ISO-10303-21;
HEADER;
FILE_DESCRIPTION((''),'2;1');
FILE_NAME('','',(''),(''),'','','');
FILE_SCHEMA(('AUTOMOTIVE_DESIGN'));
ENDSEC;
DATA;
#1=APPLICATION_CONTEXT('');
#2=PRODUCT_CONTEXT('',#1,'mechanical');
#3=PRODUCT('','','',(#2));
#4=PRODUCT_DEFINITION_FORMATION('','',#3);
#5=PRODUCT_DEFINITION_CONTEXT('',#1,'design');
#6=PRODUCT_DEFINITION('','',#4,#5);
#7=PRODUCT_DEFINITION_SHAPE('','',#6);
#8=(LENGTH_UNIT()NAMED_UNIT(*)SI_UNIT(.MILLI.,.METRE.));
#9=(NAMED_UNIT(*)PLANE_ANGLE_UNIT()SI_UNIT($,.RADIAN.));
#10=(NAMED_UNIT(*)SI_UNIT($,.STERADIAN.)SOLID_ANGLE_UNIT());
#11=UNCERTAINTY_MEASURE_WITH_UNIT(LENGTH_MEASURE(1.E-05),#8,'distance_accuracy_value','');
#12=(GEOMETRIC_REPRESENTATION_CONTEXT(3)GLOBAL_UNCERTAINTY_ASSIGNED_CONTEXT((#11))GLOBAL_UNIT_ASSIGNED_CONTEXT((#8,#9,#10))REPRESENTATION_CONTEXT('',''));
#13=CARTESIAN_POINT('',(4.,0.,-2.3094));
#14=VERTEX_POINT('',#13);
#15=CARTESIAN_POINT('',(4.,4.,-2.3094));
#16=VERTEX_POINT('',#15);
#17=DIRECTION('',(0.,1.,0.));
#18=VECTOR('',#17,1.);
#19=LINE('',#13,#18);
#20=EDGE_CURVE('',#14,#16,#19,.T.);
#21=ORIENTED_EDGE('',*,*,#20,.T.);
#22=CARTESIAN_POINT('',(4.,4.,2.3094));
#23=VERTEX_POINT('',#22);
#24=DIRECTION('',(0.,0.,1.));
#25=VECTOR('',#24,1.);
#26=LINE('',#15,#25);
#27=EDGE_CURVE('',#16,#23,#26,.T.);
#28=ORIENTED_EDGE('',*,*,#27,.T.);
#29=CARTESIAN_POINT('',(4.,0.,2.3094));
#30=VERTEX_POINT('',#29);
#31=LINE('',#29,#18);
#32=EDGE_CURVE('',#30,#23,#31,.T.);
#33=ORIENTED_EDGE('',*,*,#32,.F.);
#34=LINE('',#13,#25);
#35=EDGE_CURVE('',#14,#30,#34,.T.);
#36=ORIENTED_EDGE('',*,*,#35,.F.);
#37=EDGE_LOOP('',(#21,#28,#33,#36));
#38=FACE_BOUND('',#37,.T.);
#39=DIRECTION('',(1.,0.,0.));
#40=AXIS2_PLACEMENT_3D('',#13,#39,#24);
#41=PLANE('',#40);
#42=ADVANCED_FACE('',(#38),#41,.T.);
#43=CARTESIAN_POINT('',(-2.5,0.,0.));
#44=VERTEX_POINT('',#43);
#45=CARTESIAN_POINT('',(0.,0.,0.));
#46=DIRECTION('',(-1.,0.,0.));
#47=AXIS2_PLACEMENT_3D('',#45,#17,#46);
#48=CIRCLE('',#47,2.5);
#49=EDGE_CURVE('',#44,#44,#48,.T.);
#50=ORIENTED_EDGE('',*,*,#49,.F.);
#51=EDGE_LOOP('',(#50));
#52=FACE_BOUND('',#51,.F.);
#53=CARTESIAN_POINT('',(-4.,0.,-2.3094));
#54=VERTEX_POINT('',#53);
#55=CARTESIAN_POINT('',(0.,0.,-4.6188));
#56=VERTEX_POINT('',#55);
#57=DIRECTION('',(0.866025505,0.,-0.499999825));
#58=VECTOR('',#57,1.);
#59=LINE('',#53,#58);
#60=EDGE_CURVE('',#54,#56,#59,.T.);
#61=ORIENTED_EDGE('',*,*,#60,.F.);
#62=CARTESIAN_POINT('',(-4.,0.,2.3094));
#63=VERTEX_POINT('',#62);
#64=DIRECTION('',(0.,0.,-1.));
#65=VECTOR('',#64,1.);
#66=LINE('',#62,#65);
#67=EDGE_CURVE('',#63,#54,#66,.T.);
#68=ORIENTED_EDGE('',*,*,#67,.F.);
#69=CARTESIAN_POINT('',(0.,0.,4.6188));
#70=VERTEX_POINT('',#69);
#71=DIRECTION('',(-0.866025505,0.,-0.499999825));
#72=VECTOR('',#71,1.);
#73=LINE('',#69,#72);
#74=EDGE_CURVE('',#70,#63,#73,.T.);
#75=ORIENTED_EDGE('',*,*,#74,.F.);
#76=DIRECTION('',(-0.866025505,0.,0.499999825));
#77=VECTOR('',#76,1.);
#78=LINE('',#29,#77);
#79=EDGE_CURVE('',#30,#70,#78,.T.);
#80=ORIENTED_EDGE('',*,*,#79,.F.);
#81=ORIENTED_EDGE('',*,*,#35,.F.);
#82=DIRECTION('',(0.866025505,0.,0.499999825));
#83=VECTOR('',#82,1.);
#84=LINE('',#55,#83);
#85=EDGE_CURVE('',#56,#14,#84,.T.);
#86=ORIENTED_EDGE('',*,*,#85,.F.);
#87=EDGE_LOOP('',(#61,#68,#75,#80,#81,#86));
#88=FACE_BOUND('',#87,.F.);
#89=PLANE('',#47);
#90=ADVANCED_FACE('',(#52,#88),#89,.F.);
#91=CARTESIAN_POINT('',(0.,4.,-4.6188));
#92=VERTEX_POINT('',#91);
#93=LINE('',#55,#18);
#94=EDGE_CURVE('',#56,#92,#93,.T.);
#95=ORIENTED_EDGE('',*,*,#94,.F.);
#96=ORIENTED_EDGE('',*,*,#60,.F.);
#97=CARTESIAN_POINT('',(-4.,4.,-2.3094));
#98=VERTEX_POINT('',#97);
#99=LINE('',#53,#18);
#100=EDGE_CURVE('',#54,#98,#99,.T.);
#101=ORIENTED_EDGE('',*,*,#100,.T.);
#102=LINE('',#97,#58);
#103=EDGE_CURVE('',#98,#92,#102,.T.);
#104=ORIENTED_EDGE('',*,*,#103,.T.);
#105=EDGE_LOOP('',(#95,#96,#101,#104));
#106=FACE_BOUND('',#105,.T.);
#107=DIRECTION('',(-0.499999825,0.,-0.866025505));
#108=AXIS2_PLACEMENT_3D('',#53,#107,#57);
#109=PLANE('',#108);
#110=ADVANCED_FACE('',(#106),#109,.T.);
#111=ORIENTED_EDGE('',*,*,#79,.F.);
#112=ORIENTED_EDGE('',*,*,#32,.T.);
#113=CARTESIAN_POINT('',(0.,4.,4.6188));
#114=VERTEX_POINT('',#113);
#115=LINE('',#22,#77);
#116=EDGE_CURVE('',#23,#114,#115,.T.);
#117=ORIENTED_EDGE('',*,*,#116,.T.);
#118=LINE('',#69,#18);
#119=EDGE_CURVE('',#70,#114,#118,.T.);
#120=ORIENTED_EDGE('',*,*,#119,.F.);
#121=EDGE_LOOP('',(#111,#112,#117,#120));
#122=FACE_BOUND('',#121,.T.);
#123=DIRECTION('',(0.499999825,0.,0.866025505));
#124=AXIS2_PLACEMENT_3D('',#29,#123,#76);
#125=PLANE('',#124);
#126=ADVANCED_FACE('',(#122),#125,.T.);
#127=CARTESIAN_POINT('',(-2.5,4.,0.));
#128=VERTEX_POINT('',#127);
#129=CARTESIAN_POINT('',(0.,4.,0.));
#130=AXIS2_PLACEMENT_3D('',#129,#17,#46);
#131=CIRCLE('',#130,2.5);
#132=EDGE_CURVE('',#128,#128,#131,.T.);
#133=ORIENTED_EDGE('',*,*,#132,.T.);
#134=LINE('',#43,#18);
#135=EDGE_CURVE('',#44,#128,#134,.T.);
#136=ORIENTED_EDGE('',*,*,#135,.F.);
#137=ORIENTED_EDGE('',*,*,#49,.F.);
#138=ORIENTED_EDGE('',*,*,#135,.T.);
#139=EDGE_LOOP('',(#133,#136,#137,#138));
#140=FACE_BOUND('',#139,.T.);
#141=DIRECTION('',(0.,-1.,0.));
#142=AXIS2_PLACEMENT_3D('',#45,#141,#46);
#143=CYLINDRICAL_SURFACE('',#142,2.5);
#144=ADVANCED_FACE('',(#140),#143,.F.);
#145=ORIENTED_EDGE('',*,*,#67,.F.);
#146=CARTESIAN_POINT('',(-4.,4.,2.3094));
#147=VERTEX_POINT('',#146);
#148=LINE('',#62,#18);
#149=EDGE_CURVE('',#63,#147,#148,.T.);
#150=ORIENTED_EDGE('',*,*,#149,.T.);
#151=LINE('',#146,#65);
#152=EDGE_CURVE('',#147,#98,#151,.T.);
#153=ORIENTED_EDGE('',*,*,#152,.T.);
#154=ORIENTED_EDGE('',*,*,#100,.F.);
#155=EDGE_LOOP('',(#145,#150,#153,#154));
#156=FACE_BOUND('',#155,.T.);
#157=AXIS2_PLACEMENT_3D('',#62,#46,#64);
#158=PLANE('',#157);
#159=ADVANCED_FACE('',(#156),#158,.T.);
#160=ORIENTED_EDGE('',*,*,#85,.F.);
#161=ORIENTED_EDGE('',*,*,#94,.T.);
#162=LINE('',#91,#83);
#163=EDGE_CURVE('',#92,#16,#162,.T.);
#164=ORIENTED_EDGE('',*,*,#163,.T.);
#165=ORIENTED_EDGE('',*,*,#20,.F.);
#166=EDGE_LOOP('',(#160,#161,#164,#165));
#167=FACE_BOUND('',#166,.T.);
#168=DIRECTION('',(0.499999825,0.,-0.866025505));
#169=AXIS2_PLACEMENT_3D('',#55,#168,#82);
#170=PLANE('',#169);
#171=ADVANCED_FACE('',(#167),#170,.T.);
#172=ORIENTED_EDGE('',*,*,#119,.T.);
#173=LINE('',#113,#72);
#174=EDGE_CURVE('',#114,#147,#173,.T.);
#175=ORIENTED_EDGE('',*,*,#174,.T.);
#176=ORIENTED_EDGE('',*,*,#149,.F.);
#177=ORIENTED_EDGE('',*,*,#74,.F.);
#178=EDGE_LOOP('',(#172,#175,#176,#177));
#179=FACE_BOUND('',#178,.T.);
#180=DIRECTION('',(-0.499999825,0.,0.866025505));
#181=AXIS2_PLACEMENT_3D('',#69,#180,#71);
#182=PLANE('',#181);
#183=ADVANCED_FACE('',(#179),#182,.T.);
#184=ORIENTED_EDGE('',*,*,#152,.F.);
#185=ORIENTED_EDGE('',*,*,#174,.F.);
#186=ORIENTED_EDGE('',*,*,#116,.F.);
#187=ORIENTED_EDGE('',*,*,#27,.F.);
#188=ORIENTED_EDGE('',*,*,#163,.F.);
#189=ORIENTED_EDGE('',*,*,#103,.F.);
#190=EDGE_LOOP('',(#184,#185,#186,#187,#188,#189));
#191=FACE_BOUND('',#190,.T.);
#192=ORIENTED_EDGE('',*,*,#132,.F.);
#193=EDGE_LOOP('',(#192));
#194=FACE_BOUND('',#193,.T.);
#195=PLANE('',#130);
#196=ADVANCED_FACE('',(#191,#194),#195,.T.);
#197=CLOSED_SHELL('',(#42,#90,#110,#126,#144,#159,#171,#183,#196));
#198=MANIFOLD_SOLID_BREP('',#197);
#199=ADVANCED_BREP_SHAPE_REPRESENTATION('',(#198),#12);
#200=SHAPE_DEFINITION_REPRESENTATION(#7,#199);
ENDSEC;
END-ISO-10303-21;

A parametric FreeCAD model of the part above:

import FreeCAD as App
import Part
import Sketcher
Q = App.Units.Quantity

doc = App.newDocument("Part")
body = doc.addObject("PartDesign::Body", "Body")

# Sketch on XZ plane
sketch1 = body.newObject("Sketcher::SketchObject", "Sketch")
sketch1.AttachmentSupport = (doc.getObject("XZ_Plane"), [""])
sketch1.MapMode = "FlatFace"
sketch1.addGeometry(Part.LineSegment(App.Vector(-4, 2.3, 0), App.Vector(0, 4.6, 0)), False)
sketch1.addGeometry(Part.LineSegment(App.Vector(0, 4.6, 0), App.Vector(4, 2.3, 0)), False)
sketch1.addGeometry(Part.LineSegment(App.Vector(4, 2.3, 0), App.Vector(4, -2.3, 0)), False)
sketch1.addGeometry(Part.LineSegment(App.Vector(4, -2.3, 0), App.Vector(0, -4.6, 0)), False)
sketch1.addGeometry(Part.LineSegment(App.Vector(0, -4.6, 0), App.Vector(-4, -2.3, 0)), False)
sketch1.addGeometry(Part.LineSegment(App.Vector(-4, -2.3, 0), App.Vector(-4, 2.3, 0)), False)
sketch1.addGeometry(Part.Circle(App.Vector(0, 0, 0), App.Vector(0, 0, 1), 2.5), False)
sketch1.addConstraint(Sketcher.Constraint("Coincident", 0, 2, 1, 1))
sketch1.addConstraint(Sketcher.Constraint("Coincident", 1, 2, 2, 1))
sketch1.addConstraint(Sketcher.Constraint("Coincident", 2, 2, 3, 1))
sketch1.addConstraint(Sketcher.Constraint("Coincident", 3, 2, 4, 1))
sketch1.addConstraint(Sketcher.Constraint("Coincident", 4, 2, 5, 1))
sketch1.addConstraint(Sketcher.Constraint("Coincident", 5, 2, 0, 1))
sketch1.addConstraint(Sketcher.Constraint("Vertical", 2))
sketch1.addConstraint(Sketcher.Constraint("Vertical", 5))
sketch1.addConstraint(Sketcher.Constraint("Coincident", 6, 3, -1, 1))
sketch1.addConstraint(Sketcher.Constraint("Symmetric", 0, 2, 3, 2, -1, 1))
sketch1.addConstraint(Sketcher.Constraint("Symmetric", 1, 2, 4, 2, -1, 1))
sketch1.addConstraint(Sketcher.Constraint("PointOnObject", 0, 2, -2))
sketch1.addConstraint(Sketcher.Constraint("Parallel", 0, 3))
sketch1.addConstraint(Sketcher.Constraint("Horizontal", 2, 2, 4, 2))
sketch1.addConstraint(Sketcher.Constraint("Diameter", 6, Q("5 mm")))
sketch1.addConstraint(Sketcher.Constraint("DistanceX", 4, 2, 2, 2, Q("8 mm")))
sketch1.addConstraint(Sketcher.Constraint("Angle", 0, Q("30 deg")))
sketch1.addConstraint(Sketcher.Constraint("DistanceY", 2, 2, 2, 1, Q("4.6188 mm")))
pad1 = body.newObject("PartDesign::Pad", "Pad")
pad1.Profile = sketch1
pad1.Length = 4
pad1.Reversed = True

doc.recompute()
